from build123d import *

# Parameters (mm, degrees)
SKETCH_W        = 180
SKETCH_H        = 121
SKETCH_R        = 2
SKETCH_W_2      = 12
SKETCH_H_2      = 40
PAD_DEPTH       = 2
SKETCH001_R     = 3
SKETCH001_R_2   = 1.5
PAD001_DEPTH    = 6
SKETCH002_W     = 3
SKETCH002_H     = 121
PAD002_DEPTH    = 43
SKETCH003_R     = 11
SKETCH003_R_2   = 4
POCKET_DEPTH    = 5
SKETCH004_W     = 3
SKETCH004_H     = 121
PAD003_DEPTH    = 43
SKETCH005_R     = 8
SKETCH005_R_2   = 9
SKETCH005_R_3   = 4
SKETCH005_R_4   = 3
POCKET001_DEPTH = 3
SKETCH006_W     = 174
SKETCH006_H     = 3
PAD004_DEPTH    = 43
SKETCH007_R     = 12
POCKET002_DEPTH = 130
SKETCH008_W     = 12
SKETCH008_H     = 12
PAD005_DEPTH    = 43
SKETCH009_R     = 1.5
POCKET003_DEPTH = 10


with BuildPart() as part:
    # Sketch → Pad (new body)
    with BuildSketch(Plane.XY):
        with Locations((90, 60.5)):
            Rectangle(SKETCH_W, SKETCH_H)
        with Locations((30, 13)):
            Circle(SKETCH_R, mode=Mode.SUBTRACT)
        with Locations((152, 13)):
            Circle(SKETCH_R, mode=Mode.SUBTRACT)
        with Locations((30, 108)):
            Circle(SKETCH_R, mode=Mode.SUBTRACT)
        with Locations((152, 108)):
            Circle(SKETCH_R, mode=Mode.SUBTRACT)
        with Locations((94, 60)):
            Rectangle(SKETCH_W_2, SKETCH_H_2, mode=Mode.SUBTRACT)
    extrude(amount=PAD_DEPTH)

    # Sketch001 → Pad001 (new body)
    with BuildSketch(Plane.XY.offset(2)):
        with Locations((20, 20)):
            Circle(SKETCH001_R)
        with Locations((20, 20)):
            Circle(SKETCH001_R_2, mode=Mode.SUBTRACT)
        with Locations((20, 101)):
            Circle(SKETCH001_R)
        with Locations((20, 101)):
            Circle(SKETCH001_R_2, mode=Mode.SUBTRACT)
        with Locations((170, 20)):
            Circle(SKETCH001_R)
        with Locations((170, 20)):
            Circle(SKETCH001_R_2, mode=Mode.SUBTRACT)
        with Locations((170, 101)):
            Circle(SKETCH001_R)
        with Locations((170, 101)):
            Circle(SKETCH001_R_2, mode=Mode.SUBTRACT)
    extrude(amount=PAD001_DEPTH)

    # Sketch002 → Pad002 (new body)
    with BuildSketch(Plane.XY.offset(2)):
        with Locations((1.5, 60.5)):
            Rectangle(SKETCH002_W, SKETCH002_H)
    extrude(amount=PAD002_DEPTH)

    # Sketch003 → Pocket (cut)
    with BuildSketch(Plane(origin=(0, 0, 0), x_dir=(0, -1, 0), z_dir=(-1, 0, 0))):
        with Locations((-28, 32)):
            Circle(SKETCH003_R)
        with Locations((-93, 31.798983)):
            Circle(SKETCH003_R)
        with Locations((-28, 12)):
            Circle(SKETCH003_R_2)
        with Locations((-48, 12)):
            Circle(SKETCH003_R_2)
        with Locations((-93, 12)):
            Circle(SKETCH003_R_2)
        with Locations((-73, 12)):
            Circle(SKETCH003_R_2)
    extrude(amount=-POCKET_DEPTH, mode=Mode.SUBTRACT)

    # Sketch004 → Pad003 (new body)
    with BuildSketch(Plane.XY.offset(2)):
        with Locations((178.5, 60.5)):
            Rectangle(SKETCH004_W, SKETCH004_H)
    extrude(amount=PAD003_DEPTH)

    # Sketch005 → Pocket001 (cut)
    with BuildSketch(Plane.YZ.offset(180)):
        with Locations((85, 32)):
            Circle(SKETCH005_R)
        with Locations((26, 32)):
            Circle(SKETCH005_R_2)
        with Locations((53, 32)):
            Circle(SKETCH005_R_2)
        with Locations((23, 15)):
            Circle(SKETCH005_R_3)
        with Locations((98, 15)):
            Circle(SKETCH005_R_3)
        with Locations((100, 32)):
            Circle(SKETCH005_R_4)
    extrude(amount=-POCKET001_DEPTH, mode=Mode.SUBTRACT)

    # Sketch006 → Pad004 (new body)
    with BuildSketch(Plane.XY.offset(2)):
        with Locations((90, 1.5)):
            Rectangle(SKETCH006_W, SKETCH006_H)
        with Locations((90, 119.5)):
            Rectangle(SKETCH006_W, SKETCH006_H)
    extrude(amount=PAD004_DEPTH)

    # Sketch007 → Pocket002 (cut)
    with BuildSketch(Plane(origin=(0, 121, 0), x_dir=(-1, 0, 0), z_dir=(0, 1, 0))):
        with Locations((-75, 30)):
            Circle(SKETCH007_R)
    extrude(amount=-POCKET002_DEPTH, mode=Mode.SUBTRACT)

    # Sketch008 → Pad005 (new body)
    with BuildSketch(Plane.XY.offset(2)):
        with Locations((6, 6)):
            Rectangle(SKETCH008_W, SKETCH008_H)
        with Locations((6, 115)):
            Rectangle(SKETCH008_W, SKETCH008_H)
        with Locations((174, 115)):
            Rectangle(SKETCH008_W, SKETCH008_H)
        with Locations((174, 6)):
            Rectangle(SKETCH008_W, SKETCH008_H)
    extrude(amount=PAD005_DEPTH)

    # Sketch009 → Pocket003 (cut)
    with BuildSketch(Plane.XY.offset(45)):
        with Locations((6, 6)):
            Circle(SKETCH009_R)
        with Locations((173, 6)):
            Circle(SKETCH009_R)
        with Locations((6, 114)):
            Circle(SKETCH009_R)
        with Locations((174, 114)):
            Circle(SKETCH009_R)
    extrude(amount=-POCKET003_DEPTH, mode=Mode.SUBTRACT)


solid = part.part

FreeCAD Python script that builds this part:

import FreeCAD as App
import Part
import Sketcher

doc = App.newDocument("Part")
body = doc.addObject("PartDesign::Body", "Body")

# Sketch on XY plane
sketch1 = doc.addObject("Sketcher::SketchObject", "Sketch")
body.addObject(sketch1)
sketch1.AttachmentSupport = (doc.XY_Plane, [""])
sketch1.MapMode = "FlatFace"
sketch1.addGeometry([
    Part.LineSegment(App.Vector(0, 121, 0), App.Vector(0, 0, 0)),  # 0
    Part.LineSegment(App.Vector(0, 0, 0), App.Vector(180, 0, 0)),  # 1
    Part.LineSegment(App.Vector(180, 0, 0), App.Vector(180, 121, 0)),  # 2
    Part.LineSegment(App.Vector(180, 121, 0), App.Vector(0, 121, 0)),  # 3
    Part.Circle(App.Vector(30, 13, 0), App.Vector(0, 0, 1), 2),  # 4
    Part.Circle(App.Vector(152, 13, 0), App.Vector(0, 0, 1), 2),  # 5
    Part.LineSegment(App.Vector(100, 40, 0), App.Vector(88, 40, 0)),  # 6
    Part.LineSegment(App.Vector(88, 40, 0), App.Vector(88, 80, 0)),  # 7
    Part.LineSegment(App.Vector(88, 80, 0), App.Vector(100, 80, 0)),  # 8
    Part.LineSegment(App.Vector(100, 80, 0), App.Vector(100, 40, 0)),  # 9
    Part.Circle(App.Vector(30, 108, 0), App.Vector(0, 0, 1), 2),  # 10
    Part.Circle(App.Vector(152, 108, 0), App.Vector(0, 0, 1), 2),  # 11
], False)
sketch1.addConstraint([
    Sketcher.Constraint("Coincident", 0, 2, 1, 1),
    Sketcher.Constraint("Coincident", 1, 2, 2, 1),
    Sketcher.Constraint("Coincident", 2, 2, 3, 1),
    Sketcher.Constraint("Coincident", 3, 2, 0, 1),
    Sketcher.Constraint("Coincident", 6, 2, 7, 1),
    Sketcher.Constraint("Coincident", 7, 2, 8, 1),
    Sketcher.Constraint("Coincident", 8, 2, 9, 1),
    Sketcher.Constraint("Coincident", 9, 2, 6, 1),
    Sketcher.Constraint("Vertical", 0),
    Sketcher.Constraint("Horizontal", 1),
    Sketcher.Constraint("Vertical", 2),
    Sketcher.Constraint("Horizontal", 3),
    Sketcher.Constraint("Horizontal", 6),
    Sketcher.Constraint("Vertical", 7),
    Sketcher.Constraint("Horizontal", 8),
    Sketcher.Constraint("Vertical", 9),
    Sketcher.Constraint("Coincident", 0, 2, -1, 1),
    Sketcher.Constraint("Equal", 4, 5),
    Sketcher.Constraint("Equal", 5, 10),
    Sketcher.Constraint("Equal", 10, 11),
    Sketcher.Constraint("Horizontal", 4, 3, 5, 3),
    Sketcher.Constraint("Horizontal", 10, 3, 11, 3),
    Sketcher.Constraint("Vertical", 4, 3, 10, 3),
    Sketcher.Constraint("Vertical", 5, 3, 11, 3),
    Sketcher.Constraint("Diameter", 4, 4.0),
    Sketcher.Constraint("DistanceX", 1, 1, 1, 2, 180.0),
    Sketcher.Constraint("DistanceX", 6, 2, 6, 1, 12.0),
    Sketcher.Constraint("DistanceY", 0, 2, 0, 1, 121.0),
    Sketcher.Constraint("DistanceY", 7, 1, 7, 2, 40.0),
    Sketcher.Constraint("DistanceX", -1, 1, 4, 3, 30.0),
    Sketcher.Constraint("DistanceY", -1, 1, 4, 3, 13.0),
    Sketcher.Constraint("DistanceX", -1, 1, 5, 3, 152.0),
    Sketcher.Constraint("DistanceY", -1, 1, 10, 3, 108.0),
    Sketcher.Constraint("DistanceX", -1, 1, 6, 2, 88.0),
    Sketcher.Constraint("DistanceY", -1, 1, 6, 2, 40.0),
])
pad1 = doc.addObject("PartDesign::Pad", "Pad")
body.addObject(pad1)
pad1.Profile = sketch1
pad1.Length = 2

# Sketch on XY plane
sketch2 = doc.addObject("Sketcher::SketchObject", "Sketch001")
body.addObject(sketch2)
sketch2.AttachmentSupport = (doc.XY_Plane, [""])
sketch2.MapMode = "FlatFace"
sketch2.AttachmentOffset = App.Placement(App.Vector(0, 0, 2), App.Rotation())
sketch2.addGeometry([
    Part.Circle(App.Vector(20, 20, 0), App.Vector(0, 0, 1), 3),  # 0
    Part.Circle(App.Vector(20, 20, 0), App.Vector(0, 0, 1), 1.5),  # 1
    Part.Circle(App.Vector(20, 101, 0), App.Vector(0, 0, 1), 3),  # 2
    Part.Circle(App.Vector(20, 101, 0), App.Vector(0, 0, 1), 1.5),  # 3
    Part.Circle(App.Vector(170, 20, 0), App.Vector(0, 0, 1), 3),  # 4
    Part.Circle(App.Vector(170, 20, 0), App.Vector(0, 0, 1), 1.5),  # 5
    Part.Circle(App.Vector(170, 101, 0), App.Vector(0, 0, 1), 3),  # 6
    Part.Circle(App.Vector(170, 101, 0), App.Vector(0, 0, 1), 1.5),  # 7
], False)
sketch2.addConstraint([
    Sketcher.Constraint("Coincident", 1, 3, 0, 3),
    Sketcher.Constraint("Coincident", 3, 3, 2, 3),
    Sketcher.Constraint("Coincident", 5, 3, 4, 3),
    Sketcher.Constraint("Coincident", 7, 3, 6, 3),
    Sketcher.Constraint("Equal", 0, 2),
    Sketcher.Constraint("Equal", 1, 3),
    Sketcher.Constraint("Equal", 2, 4),
    Sketcher.Constraint("Equal", 3, 5),
    Sketcher.Constraint("Equal", 4, 6),
    Sketcher.Constraint("Equal", 5, 7),
    Sketcher.Constraint("Horizontal", 1, 3, 4, 3),
    Sketcher.Constraint("Horizontal", 3, 3, 6, 3),
    Sketcher.Constraint("Vertical", 1, 3, 2, 3),
    Sketcher.Constraint("Vertical", 5, 3, 6, 3),
    Sketcher.Constraint("Diameter", 0, 6.0),
    Sketcher.Constraint("Diameter", 1, 3.0),
    Sketcher.Constraint("DistanceX", -1, 1, 0, 3, 20.0),
    Sketcher.Constraint("DistanceY", -1, 1, 0, 3, 20.0),
    Sketcher.Constraint("DistanceY", -1, 1, 2, 3, 101.0),
    Sketcher.Constraint("DistanceX", -1, 1, 4, 3, 170.0),
])
pad2 = doc.addObject("PartDesign::Pad", "Pad001")
body.addObject(pad2)
pad2.Profile = sketch2
pad2.Length = 6

# Sketch on XY plane
sketch3 = doc.addObject("Sketcher::SketchObject", "Sketch002")
body.addObject(sketch3)
sketch3.AttachmentSupport = (doc.XY_Plane, [""])
sketch3.MapMode = "FlatFace"
sketch3.AttachmentOffset = App.Placement(App.Vector(0, 0, 2), App.Rotation())
sketch3.addGeometry([
    Part.LineSegment(App.Vector(0, 121, 0), App.Vector(0, 0, 0)),
    Part.LineSegment(App.Vector(0, 0, 0), App.Vector(3, 0, 0)),
    Part.LineSegment(App.Vector(3, 0, 0), App.Vector(3, 121, 0)),
    Part.LineSegment(App.Vector(3, 121, 0), App.Vector(0, 121, 0)),
], False)
sketch3.addConstraint([
    Sketcher.Constraint("Coincident", 0, 2, 1, 1),
    Sketcher.Constraint("Coincident", 1, 2, 2, 1),
    Sketcher.Constraint("Coincident", 2, 2, 3, 1),
    Sketcher.Constraint("Coincident", 3, 2, 0, 1),
    Sketcher.Constraint("Vertical", 0),
    Sketcher.Constraint("Horizontal", 1),
    Sketcher.Constraint("Vertical", 2),
    Sketcher.Constraint("Horizontal", 3),
    Sketcher.Constraint("Coincident", 0, 2, -1, 1),
    Sketcher.Constraint("DistanceX", 1, 1, 1, 2, 3.0),
    Sketcher.Constraint("DistanceY", 0, 2, 0, 1, 121.0),
])
pad3 = doc.addObject("PartDesign::Pad", "Pad002")
body.addObject(pad3)
pad3.Profile = sketch3
pad3.Length = 43

# Sketch on YZ plane
sketch4 = doc.addObject("Sketcher::SketchObject", "Sketch003")
body.addObject(sketch4)
sketch4.AttachmentSupport = (doc.YZ_Plane, [""])
sketch4.MapMode = "FlatFace"
sketch4.addGeometry([
    Part.Circle(App.Vector(28, 32, 0), App.Vector(0, 0, 1), 11),  # 0
    Part.Circle(App.Vector(93, 31.798983, 0), App.Vector(0, 0, 1), 11),  # 1
    Part.Circle(App.Vector(28, 12, 0), App.Vector(0, 0, 1), 4),  # 2
    Part.Circle(App.Vector(48, 12, 0), App.Vector(0, 0, 1), 4),  # 3
    Part.Circle(App.Vector(93, 12, 0), App.Vector(0, 0, 1), 4),  # 4
    Part.Circle(App.Vector(73, 12, 0), App.Vector(0, 0, 1), 4),  # 5
], False)
sketch4.addConstraint([
    Sketcher.Constraint("Equal", 0, 1),
    Sketcher.Constraint("Equal", 2, 3),
    Sketcher.Constraint("Equal", 3, 4),
    Sketcher.Constraint("Equal", 4, 5),
    Sketcher.Constraint("Horizontal", 2, 3, 3, 3),
    Sketcher.Constraint("Horizontal", 3, 3, 4, 3),
    Sketcher.Constraint("Horizontal", 4, 3, 5, 3),
    Sketcher.Constraint("Vertical", 0, 3, 2, 3),
    Sketcher.Constraint("Vertical", 1, 3, 4, 3),
    Sketcher.Constraint("Diameter", 0, 22.0),
    Sketcher.Constraint("Diameter", 2, 8.0),
    Sketcher.Constraint("DistanceX", -1, 1, 0, 3, 28.0),
    Sketcher.Constraint("DistanceY", -1, 1, 0, 3, 32.0),
    Sketcher.Constraint("DistanceX", -1, 1, 1, 3, 93.0),
    Sketcher.Constraint("DistanceY", -1, 1, 2, 3, 12.0),
    Sketcher.Constraint("DistanceX", -1, 1, 3, 3, 48.0),
    Sketcher.Constraint("DistanceX", -1, 1, 5, 3, 73.0),
    Sketcher.Constraint("DistanceY", -1, 1, 1, 3, 31.798983),
])
pocket1 = doc.addObject("PartDesign::Pocket", "Pocket")
body.addObject(pocket1)
pocket1.Profile = sketch4
pocket1.Length = 5
pocket1.Reversed = True

# Sketch on XY plane
sketch5 = doc.addObject("Sketcher::SketchObject", "Sketch004")
body.addObject(sketch5)
sketch5.AttachmentSupport = (doc.XY_Plane, [""])
sketch5.MapMode = "FlatFace"
sketch5.AttachmentOffset = App.Placement(App.Vector(0, 0, 2), App.Rotation())
sketch5.addGeometry([
    Part.LineSegment(App.Vector(177, 121, 0), App.Vector(177, 0, 0)),
    Part.LineSegment(App.Vector(177, 0, 0), App.Vector(180, 0, 0)),
    Part.LineSegment(App.Vector(180, 0, 0), App.Vector(180, 121, 0)),
    Part.LineSegment(App.Vector(180, 121, 0), App.Vector(177, 121, 0)),
], False)
sketch5.addConstraint([
    Sketcher.Constraint("Coincident", 0, 2, 1, 1),
    Sketcher.Constraint("Coincident", 1, 2, 2, 1),
    Sketcher.Constraint("Coincident", 2, 2, 3, 1),
    Sketcher.Constraint("Coincident", 3, 2, 0, 1),
    Sketcher.Constraint("Vertical", 0),
    Sketcher.Constraint("Horizontal", 1),
    Sketcher.Constraint("Vertical", 2),
    Sketcher.Constraint("Horizontal", 3),
    Sketcher.Constraint("PointOnObject", 0, 2, -1),
    Sketcher.Constraint("DistanceX", 1, 1, 1, 2, 3.0),
    Sketcher.Constraint("DistanceY", 0, 2, 0, 1, 121.0),
    Sketcher.Constraint("DistanceX", -1, 1, 0, 2, 177.0),
])
pad4 = doc.addObject("PartDesign::Pad", "Pad003")
body.addObject(pad4)
pad4.Profile = sketch5
pad4.Length = 43

# Sketch on YZ plane
sketch6 = doc.addObject("Sketcher::SketchObject", "Sketch005")
body.addObject(sketch6)
sketch6.AttachmentSupport = (doc.YZ_Plane, [""])
sketch6.MapMode = "FlatFace"
sketch6.AttachmentOffset = App.Placement(App.Vector(0, 0, 180), App.Rotation())
sketch6.addGeometry([
    Part.Circle(App.Vector(85, 32, 0), App.Vector(0, 0, 1), 8),  # 0
    Part.Circle(App.Vector(26, 32, 0), App.Vector(0, 0, 1), 9),  # 1
    Part.Circle(App.Vector(53, 32, 0), App.Vector(0, 0, 1), 9),  # 2
    Part.Circle(App.Vector(23, 15, 0), App.Vector(0, 0, 1), 4),  # 3
    Part.Circle(App.Vector(98, 15, 0), App.Vector(0, 0, 1), 4),  # 4
    Part.Circle(App.Vector(100, 32, 0), App.Vector(0, 0, 1), 3),  # 5
], False)
sketch6.addConstraint([
    Sketcher.Constraint("Equal", 1, 2),
    Sketcher.Constraint("Equal", 3, 4),
    Sketcher.Constraint("Horizontal", 0, 3, 1, 3),
    Sketcher.Constraint("Horizontal", 1, 3, 2, 3),
    Sketcher.Constraint("Horizontal", 3, 3, 4, 3),
    Sketcher.Constraint("Horizontal", 2, 3, 5, 3),
    Sketcher.Constraint("Diameter", 0, 16.0),
    Sketcher.Constraint("Diameter", 1, 18.0),
    Sketcher.Constraint("Diameter", 3, 8.0),
    Sketcher.Constraint("Diameter", 5, 6.0),
    Sketcher.Constraint("DistanceX", -1, 1, 0, 3, 85.0),
    Sketcher.Constraint("DistanceY", -1, 1, 0, 3, 32.0),
    Sketcher.Constraint("DistanceX", -1, 1, 1, 3, 26.0),
    Sketcher.Constraint("DistanceX", -1, 1, 2, 3, 53.0),
    Sketcher.Constraint("DistanceX", -1, 1, 3, 3, 23.0),
    Sketcher.Constraint("DistanceY", -1, 1, 3, 3, 15.0),
    Sketcher.Constraint("DistanceX", -1, 1, 4, 3, 98.0),
    Sketcher.Constraint("DistanceX", -1, 1, 5, 3, 100.0),
])
pocket2 = doc.addObject("PartDesign::Pocket", "Pocket001")
body.addObject(pocket2)
pocket2.Profile = sketch6
pocket2.Length = 3

# Sketch on XY plane
sketch7 = doc.addObject("Sketcher::SketchObject", "Sketch006")
body.addObject(sketch7)
sketch7.AttachmentSupport = (doc.XY_Plane, [""])
sketch7.MapMode = "FlatFace"
sketch7.AttachmentOffset = App.Placement(App.Vector(0, 0, 2), App.Rotation())
sketch7.addGeometry([
    Part.LineSegment(App.Vector(3, 3, 0), App.Vector(3, 0, 0)),  # 0
    Part.LineSegment(App.Vector(3, 0, 0), App.Vector(177, 0, 0)),  # 1
    Part.LineSegment(App.Vector(177, 0, 0), App.Vector(177, 3, 0)),  # 2
    Part.LineSegment(App.Vector(177, 3, 0), App.Vector(3, 3, 0)),  # 3
    Part.LineSegment(App.Vector(3, 121, 0), App.Vector(3, 118, 0)),  # 4
    Part.LineSegment(App.Vector(3, 118, 0), App.Vector(177, 118, 0)),  # 5
    Part.LineSegment(App.Vector(177, 118, 0), App.Vector(177, 121, 0)),  # 6
    Part.LineSegment(App.Vector(177, 121, 0), App.Vector(3, 121, 0)),  # 7
], False)
sketch7.addConstraint([
    Sketcher.Constraint("Coincident", 0, 2, 1, 1),
    Sketcher.Constraint("Coincident", 1, 2, 2, 1),
    Sketcher.Constraint("Coincident", 2, 2, 3, 1),
    Sketcher.Constraint("Coincident", 3, 2, 0, 1),
    Sketcher.Constraint("Coincident", 4, 2, 5, 1),
    Sketcher.Constraint("Coincident", 5, 2, 6, 1),
    Sketcher.Constraint("Coincident", 6, 2, 7, 1),
    Sketcher.Constraint("Coincident", 7, 2, 4, 1),
    Sketcher.Constraint("Vertical", 0),
    Sketcher.Constraint("Horizontal", 1),
    Sketcher.Constraint("Vertical", 2),
    Sketcher.Constraint("Horizontal", 3),
    Sketcher.Constraint("Vertical", 4),
    Sketcher.Constraint("Horizontal", 5),
    Sketcher.Constraint("Vertical", 6),
    Sketcher.Constraint("Horizontal", 7),
    Sketcher.Constraint("PointOnObject", 0, 2, -1),
    Sketcher.Constraint("Vertical", 3, 2, 4, 2),
    Sketcher.Constraint("Vertical", 2, 2, 5, 2),
    Sketcher.Constraint("Equal", 2, 4),
    Sketcher.Constraint("DistanceX", 1, 1, 1, 2, 174.0),
    Sketcher.Constraint("DistanceY", 0, 2, 0, 1, 3.0),
    Sketcher.Constraint("DistanceX", -1, 1, 0, 2, 3.0),
    Sketcher.Constraint("DistanceY", -1, 1, 4, 2, 118.0),
])
pad5 = doc.addObject("PartDesign::Pad", "Pad004")
body.addObject(pad5)
pad5.Profile = sketch7
pad5.Length = 43

# Sketch on XZ plane
sketch8 = doc.addObject("Sketcher::SketchObject", "Sketch007")
body.addObject(sketch8)
sketch8.AttachmentSupport = (doc.XZ_Plane, [""])
sketch8.MapMode = "FlatFace"
sketch8.AttachmentOffset = App.Placement(App.Vector(0, 0, -121), App.Rotation())
sketch8.addGeometry(Part.Circle(App.Vector(75, 30, 0), App.Vector(0, 0, 1), 12), False)
sketch8.addConstraint([
    Sketcher.Constraint("Diameter", 0, 24.0),
    Sketcher.Constraint("DistanceX", -1, 1, 0, 3, 75.0),
    Sketcher.Constraint("DistanceY", -1, 1, 0, 3, 30.0),
])
pocket3 = doc.addObject("PartDesign::Pocket", "Pocket002")
body.addObject(pocket3)
pocket3.Profile = sketch8
pocket3.Length = 130
pocket3.Reversed = True

# Sketch on XY plane
sketch9 = doc.addObject("Sketcher::SketchObject", "Sketch008")
body.addObject(sketch9)
sketch9.AttachmentSupport = (doc.XY_Plane, [""])
sketch9.MapMode = "FlatFace"
sketch9.AttachmentOffset = App.Placement(App.Vector(0, 0, 2), App.Rotation())
sketch9.addGeometry([
    Part.LineSegment(App.Vector(0, 12, 0), App.Vector(0, 0, 0)),  # 0
    Part.LineSegment(App.Vector(0, 0, 0), App.Vector(12, 0, 0)),  # 1
    Part.LineSegment(App.Vector(12, 0, 0), App.Vector(12, 12, 0)),  # 2
    Part.LineSegment(App.Vector(12, 12, 0), App.Vector(0, 12, 0)),  # 3
    Part.LineSegment(App.Vector(0, 121, 0), App.Vector(0, 109, 0)),  # 4
    Part.LineSegment(App.Vector(0, 109, 0), App.Vector(12, 109, 0)),  # 5
    Part.LineSegment(App.Vector(12, 109, 0), App.Vector(12, 121, 0)),  # 6
    Part.LineSegment(App.Vector(12, 121, 0), App.Vector(0, 121, 0)),  # 7
    Part.LineSegment(App.Vector(168, 121, 0), App.Vector(168, 109, 0)),  # 8
    Part.LineSegment(App.Vector(168, 109, 0), App.Vector(180, 109, 0)),  # 9
    Part.LineSegment(App.Vector(180, 109, 0), App.Vector(180, 121, 0)),  # 10
    Part.LineSegment(App.Vector(180, 121, 0), App.Vector(168, 121, 0)),  # 11
    Part.LineSegment(App.Vector(168, 12, 0), App.Vector(168, 0, 0)),  # 12
    Part.LineSegment(App.Vector(168, 0, 0), App.Vector(180, 0, 0)),  # 13
    Part.LineSegment(App.Vector(180, 0, 0), App.Vector(180, 12, 0)),  # 14
    Part.LineSegment(App.Vector(180, 12, 0), App.Vector(168, 12, 0)),  # 15
], False)
sketch9.addConstraint([
    Sketcher.Constraint("Coincident", 0, 2, 1, 1),
    Sketcher.Constraint("Coincident", 1, 2, 2, 1),
    Sketcher.Constraint("Coincident", 2, 2, 3, 1),
    Sketcher.Constraint("Coincident", 3, 2, 0, 1),
    Sketcher.Constraint("Coincident", 4, 2, 5, 1),
    Sketcher.Constraint("Coincident", 5, 2, 6, 1),
    Sketcher.Constraint("Coincident", 6, 2, 7, 1),
    Sketcher.Constraint("Coincident", 7, 2, 4, 1),
    Sketcher.Constraint("Coincident", 8, 2, 9, 1),
    Sketcher.Constraint("Coincident", 9, 2, 10, 1),
    Sketcher.Constraint("Coincident", 10, 2, 11, 1),
    Sketcher.Constraint("Coincident", 11, 2, 8, 1),
    Sketcher.Constraint("Coincident", 12, 2, 13, 1),
    Sketcher.Constraint("Coincident", 13, 2, 14, 1),
    Sketcher.Constraint("Coincident", 14, 2, 15, 1),
    Sketcher.Constraint("Coincident", 15, 2, 12, 1),
    Sketcher.Constraint("Vertical", 0),
    Sketcher.Constraint("Horizontal", 1),
    Sketcher.Constraint("Vertical", 2),
    Sketcher.Constraint("Horizontal", 3),
    Sketcher.Constraint("Vertical", 4),
    Sketcher.Constraint("Horizontal", 5),
    Sketcher.Constraint("Vertical", 6),
    Sketcher.Constraint("Horizontal", 7),
    Sketcher.Constraint("Vertical", 8),
    Sketcher.Constraint("Horizontal", 9),
    Sketcher.Constraint("Vertical", 10),
    Sketcher.Constraint("Horizontal", 11),
    Sketcher.Constraint("Vertical", 12),
    Sketcher.Constraint("Horizontal", 13),
    Sketcher.Constraint("Vertical", 14),
    Sketcher.Constraint("Horizontal", 15),
    Sketcher.Constraint("Coincident", 0, 2, -1, 1),
    Sketcher.Constraint("PointOnObject", 4, 2, -2),
    Sketcher.Constraint("PointOnObject", 12, 2, -1),
    Sketcher.Constraint("Horizontal", 5, 2, 8, 2),
    Sketcher.Constraint("Horizontal", 7, 2, 10, 2),
    Sketcher.Constraint("Horizontal", 3, 2, 14, 2),
    Sketcher.Constraint("Vertical", 2, 2, 5, 2),
    Sketcher.Constraint("Vertical", 11, 2, 12, 2),
    Sketcher.Constraint("Vertical", 10, 2, 13, 2),
    Sketcher.Constraint("Equal", 7, 9),
    Sketcher.Constraint("Equal", 15, 0),
    Sketcher.Constraint("Equal", 2, 4),
    Sketcher.Constraint("DistanceX", 1, 1, 1, 2, 12.0),
    Sketcher.Constraint("DistanceY", -1, 1, 4, 2, 109.0),
    Sketcher.Constraint("DistanceX", -1, 1, 8, 2, 168.0),
])
pad6 = doc.addObject("PartDesign::Pad", "Pad005")
body.addObject(pad6)
pad6.Profile = sketch9
pad6.Length = 43

# Sketch on XY plane
sketch10 = doc.addObject("Sketcher::SketchObject", "Sketch009")
body.addObject(sketch10)
sketch10.AttachmentSupport = (doc.XY_Plane, [""])
sketch10.MapMode = "FlatFace"
sketch10.AttachmentOffset = App.Placement(App.Vector(0, 0, 45), App.Rotation())
sketch10.addGeometry([
    Part.Circle(App.Vector(6, 6, 0), App.Vector(0, 0, 1), 1.5),
    Part.Circle(App.Vector(173, 6, 0), App.Vector(0, 0, 1), 1.5),
    Part.Circle(App.Vector(6, 114, 0), App.Vector(0, 0, 1), 1.5),
    Part.Circle(App.Vector(174, 114, 0), App.Vector(0, 0, 1), 1.5),
], False)
sketch10.addConstraint([
    Sketcher.Constraint("Equal", 0, 1),
    Sketcher.Constraint("Equal", 1, 2),
    Sketcher.Constraint("Equal", 2, 3),
    Sketcher.Constraint("Horizontal", 0, 3, 1, 3),
    Sketcher.Constraint("Horizontal", 2, 3, 3, 3),
    Sketcher.Constraint("Vertical", 0, 3, 2, 3),
    Sketcher.Constraint("Diameter", 0, 3.0),
    Sketcher.Constraint("DistanceX", -1, 1, 0, 3, 6.0),
    Sketcher.Constraint("DistanceY", -1, 1, 0, 3, 6.0),
    Sketcher.Constraint("DistanceX", -1, 1, 1, 3, 173.0),
    Sketcher.Constraint("DistanceY", -1, 1, 2, 3, 114.0),
    Sketcher.Constraint("DistanceX", -1, 1, 3, 3, 174.0),
])
pocket4 = doc.addObject("PartDesign::Pocket", "Pocket003")
body.addObject(pocket4)
pocket4.Profile = sketch10
pocket4.Length = 10

doc.recompute()
